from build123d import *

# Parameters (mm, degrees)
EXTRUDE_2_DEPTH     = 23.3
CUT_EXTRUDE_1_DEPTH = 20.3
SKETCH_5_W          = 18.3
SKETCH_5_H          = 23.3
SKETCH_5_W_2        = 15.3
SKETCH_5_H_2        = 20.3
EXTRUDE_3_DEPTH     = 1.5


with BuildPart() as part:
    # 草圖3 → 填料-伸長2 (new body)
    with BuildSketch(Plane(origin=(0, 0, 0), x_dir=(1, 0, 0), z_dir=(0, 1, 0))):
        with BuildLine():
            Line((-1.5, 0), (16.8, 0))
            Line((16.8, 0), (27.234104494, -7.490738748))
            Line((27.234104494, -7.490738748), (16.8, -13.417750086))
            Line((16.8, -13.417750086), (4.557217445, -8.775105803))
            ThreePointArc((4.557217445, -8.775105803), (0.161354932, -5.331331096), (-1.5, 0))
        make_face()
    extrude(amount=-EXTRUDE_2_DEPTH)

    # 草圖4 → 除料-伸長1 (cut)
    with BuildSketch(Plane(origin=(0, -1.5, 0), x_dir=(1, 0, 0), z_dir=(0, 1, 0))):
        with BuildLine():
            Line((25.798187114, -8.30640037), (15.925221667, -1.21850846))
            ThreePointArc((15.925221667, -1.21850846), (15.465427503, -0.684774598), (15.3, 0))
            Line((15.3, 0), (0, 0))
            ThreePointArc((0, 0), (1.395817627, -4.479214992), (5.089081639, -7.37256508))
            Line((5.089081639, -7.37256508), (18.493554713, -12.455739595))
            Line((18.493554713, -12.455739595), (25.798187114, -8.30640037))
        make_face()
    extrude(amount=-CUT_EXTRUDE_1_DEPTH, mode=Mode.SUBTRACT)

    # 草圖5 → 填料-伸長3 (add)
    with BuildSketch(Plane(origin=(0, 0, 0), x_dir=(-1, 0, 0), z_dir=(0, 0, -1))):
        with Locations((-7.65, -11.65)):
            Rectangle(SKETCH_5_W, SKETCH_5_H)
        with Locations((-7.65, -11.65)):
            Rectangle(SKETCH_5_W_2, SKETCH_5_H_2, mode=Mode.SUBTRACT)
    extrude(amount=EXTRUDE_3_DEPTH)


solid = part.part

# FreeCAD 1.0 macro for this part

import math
import FreeCAD as App
import Part
import Sketcher

V = App.Vector

doc = App.newDocument("Part")
body = doc.addObject("PartDesign::Body", "Body")

# Sketch on XZ plane
sketch1 = body.newObject("Sketcher::SketchObject", "Sketch")
sketch1.AttachmentSupport = (doc.getObject("XZ_Plane"), [""])
sketch1.MapMode = "FlatFace"
sketch1.addGeometry(Part.LineSegment(V(17, 0, 0), V(-2, 0, 0)), False)
sketch1.addGeometry(Part.ArcOfCircle(Part.Circle(V(8, 0, 0), V(0, 0, 1), 9), math.radians(111), math.radians(180)), False)
sketch1.addGeometry(Part.LineSegment(V(5, 9, 0), V(17, 13, 0)), False)
sketch1.addGeometry(Part.LineSegment(V(17, 13, 0), V(27, 7, 0)), False)
sketch1.addGeometry(Part.LineSegment(V(27, 7, 0), V(17, 0, 0)), False)
sketch1.addConstraint(Sketcher.Constraint("Coincident", 0, 2, 1, 2))
sketch1.addConstraint(Sketcher.Constraint("Tangent", 1, 1, 2, 1))
sketch1.addConstraint(Sketcher.Constraint("Coincident", 2, 2, 3, 1))
sketch1.addConstraint(Sketcher.Constraint("Coincident", 3, 2, 4, 1))
sketch1.addConstraint(Sketcher.Constraint("Coincident", 4, 2, 0, 1))
sketch1.addConstraint(Sketcher.Constraint("Horizontal", 0))
sketch1.addConstraint(Sketcher.Constraint("PointOnObject", 1, 3, -1))
sketch1.addConstraint(Sketcher.Constraint("PointOnObject", 0, 2, -1))
sketch1.addConstraint(Sketcher.Constraint("Vertical", 2, 2, 4, 2))
sketch1.addConstraint(Sketcher.Constraint("Distance", 3, 12.0))
sketch1.addConstraint(Sketcher.Constraint("DistanceX", 0, 2, 0, 1, 18.3))
sketch1.addConstraint(Sketcher.Constraint("DistanceX", 0, 2, -1, 1, 1.5))
sketch1.addConstraint(Sketcher.Constraint("Radius", 1, 9.384867))
sketch1.addConstraint(Sketcher.Constraint("Distance", 4, 12.84452))
sketch1.addConstraint(Sketcher.Constraint("DistanceY", -1, 1, 2, 2, 13.41775))
pad1 = body.newObject("PartDesign::Pad", "Pad")
pad1.Profile = sketch1
pad1.Length = 23.3

# Sketch on XZ plane
sketch2 = body.newObject("Sketcher::SketchObject", "Sketch001")
sketch2.AttachmentSupport = (doc.getObject("XZ_Plane"), [""])
sketch2.MapMode = "FlatFace"
sketch2.AttachmentOffset = App.Placement(V(0, 0, 1.5), App.Rotation())
sketch2.addGeometry(Part.LineSegment(V(25.8, 8.3, 0), V(15.9, 1.2, 0)), False)
sketch2.addGeometry(Part.ArcOfCircle(Part.Circle(V(16.8, 0, 0), V(0, 0, 1), 1.5), math.radians(126), math.radians(180)), False)
sketch2.addGeometry(Part.LineSegment(V(15.3, 0, 0), V(0, 0, 0)), False)
sketch2.addGeometry(Part.ArcOfCircle(Part.Circle(V(7.9, 0, 0), V(0, 0, 1), 7.9), math.radians(111), math.radians(180)), False)
sketch2.addGeometry(Part.LineSegment(V(5.1, 7.4, 0), V(18.5, 12.5, 0)), False)
sketch2.addGeometry(Part.LineSegment(V(18.5, 12.5, 0), V(25.8, 8.3, 0)), False)
sketch2.addConstraint(Sketcher.Constraint("Tangent", 0, 2, 1, 1))
sketch2.addConstraint(Sketcher.Constraint("Coincident", 1, 2, 2, 1))
sketch2.addConstraint(Sketcher.Constraint("Coincident", 2, 2, 3, 2))
sketch2.addConstraint(Sketcher.Constraint("Tangent", 3, 1, 4, 1))
sketch2.addConstraint(Sketcher.Constraint("Coincident", 4, 2, 5, 1))
sketch2.addConstraint(Sketcher.Constraint("Coincident", 5, 2, 0, 1))
sketch2.addConstraint(Sketcher.Constraint("Horizontal", 2))
sketch2.addConstraint(Sketcher.Constraint("Coincident", 2, 2, -1, 1))
sketch2.addConstraint(Sketcher.Constraint("PointOnObject", 1, 3, -1))
sketch2.addConstraint(Sketcher.Constraint("PointOnObject", 3, 3, -1))
sketch2.addConstraint(Sketcher.Constraint("Radius", 1, 1.5))
sketch2.addConstraint(Sketcher.Constraint("DistanceX", 2, 2, 2, 1, 15.3))
sketch2.addConstraint(Sketcher.Constraint("Radius", 3, 7.884867))
sketch2.addConstraint(Sketcher.Constraint("DistanceY", -1, 1, 5, 2, 8.3064))
sketch2.addConstraint(Sketcher.Constraint("Distance", 0, 12.153751))
sketch2.addConstraint(Sketcher.Constraint("Distance", 4, 14.335919))
sketch2.addConstraint(Sketcher.Constraint("DistanceX", -1, 1, 3, 1, 5.089082))
pocket1 = body.newObject("PartDesign::Pocket", "Pocket")
pocket1.Profile = sketch2
pocket1.Length = 20.3
pocket1.Reversed = True

# Sketch on XY plane
sketch3 = body.newObject("Sketcher::SketchObject", "Sketch002")
sketch3.AttachmentSupport = (doc.getObject("XY_Plane"), [""])
sketch3.MapMode = "FlatFace"
sketch3.addGeometry(Part.LineSegment(V(17, 0, 0), V(17, -23, 0)), False)
sketch3.addGeometry(Part.LineSegment(V(17, -23, 0), V(-2, -23, 0)), False)
sketch3.addGeometry(Part.LineSegment(V(-2, -23, 0), V(-2, 0, 0)), False)
sketch3.addGeometry(Part.LineSegment(V(-2, 0, 0), V(17, 0, 0)), False)
sketch3.addGeometry(Part.LineSegment(V(0, -22, 0), V(15, -22, 0)), False)
sketch3.addGeometry(Part.LineSegment(V(15, -22, 0), V(15, -2, 0)), False)
sketch3.addGeometry(Part.LineSegment(V(15, -2, 0), V(0, -2, 0)), False)
sketch3.addGeometry(Part.LineSegment(V(0, -2, 0), V(0, -22, 0)), False)
sketch3.addConstraint(Sketcher.Constraint("Coincident", 0, 2, 1, 1))
sketch3.addConstraint(Sketcher.Constraint("Coincident", 1, 2, 2, 1))
sketch3.addConstraint(Sketcher.Constraint("Coincident", 2, 2, 3, 1))
sketch3.addConstraint(Sketcher.Constraint("Coincident", 3, 2, 0, 1))
sketch3.addConstraint(Sketcher.Constraint("Coincident", 4, 2, 5, 1))
sketch3.addConstraint(Sketcher.Constraint("Coincident", 5, 2, 6, 1))
sketch3.addConstraint(Sketcher.Constraint("Coincident", 6, 2, 7, 1))
sketch3.addConstraint(Sketcher.Constraint("Coincident", 7, 2, 4, 1))
sketch3.addConstraint(Sketcher.Constraint("Vertical", 0))
sketch3.addConstraint(Sketcher.Constraint("Horizontal", 1))
sketch3.addConstraint(Sketcher.Constraint("Vertical", 2))
sketch3.addConstraint(Sketcher.Constraint("Horizontal", 3))
sketch3.addConstraint(Sketcher.Constraint("Horizontal", 4))
sketch3.addConstraint(Sketcher.Constraint("Vertical", 5))
sketch3.addConstraint(Sketcher.Constraint("Horizontal", 6))
sketch3.addConstraint(Sketcher.Constraint("Vertical", 7))
sketch3.addConstraint(Sketcher.Constraint("PointOnObject", 2, 2, -1))
sketch3.addConstraint(Sketcher.Constraint("PointOnObject", 6, 2, -2))
sketch3.addConstraint(Sketcher.Constraint("DistanceX", 1, 2, 1, 1, 18.3))
sketch3.addConstraint(Sketcher.Constraint("DistanceX", 4, 1, 4, 2, 15.3))
sketch3.addConstraint(Sketcher.Constraint("DistanceY", 0, 2, 0, 1, 23.3))
sketch3.addConstraint(Sketcher.Constraint("DistanceY", 5, 1, 5, 2, 20.3))
sketch3.addConstraint(Sketcher.Constraint("DistanceX", -1, 1, 0, 2, 16.8))
sketch3.addConstraint(Sketcher.Constraint("DistanceY", 4, 2, -1, 1, 21.8))
pad2 = body.newObject("PartDesign::Pad", "Pad001")
pad2.Profile = sketch3
pad2.Length = 1.5
pad2.Reversed = True

doc.recompute()
